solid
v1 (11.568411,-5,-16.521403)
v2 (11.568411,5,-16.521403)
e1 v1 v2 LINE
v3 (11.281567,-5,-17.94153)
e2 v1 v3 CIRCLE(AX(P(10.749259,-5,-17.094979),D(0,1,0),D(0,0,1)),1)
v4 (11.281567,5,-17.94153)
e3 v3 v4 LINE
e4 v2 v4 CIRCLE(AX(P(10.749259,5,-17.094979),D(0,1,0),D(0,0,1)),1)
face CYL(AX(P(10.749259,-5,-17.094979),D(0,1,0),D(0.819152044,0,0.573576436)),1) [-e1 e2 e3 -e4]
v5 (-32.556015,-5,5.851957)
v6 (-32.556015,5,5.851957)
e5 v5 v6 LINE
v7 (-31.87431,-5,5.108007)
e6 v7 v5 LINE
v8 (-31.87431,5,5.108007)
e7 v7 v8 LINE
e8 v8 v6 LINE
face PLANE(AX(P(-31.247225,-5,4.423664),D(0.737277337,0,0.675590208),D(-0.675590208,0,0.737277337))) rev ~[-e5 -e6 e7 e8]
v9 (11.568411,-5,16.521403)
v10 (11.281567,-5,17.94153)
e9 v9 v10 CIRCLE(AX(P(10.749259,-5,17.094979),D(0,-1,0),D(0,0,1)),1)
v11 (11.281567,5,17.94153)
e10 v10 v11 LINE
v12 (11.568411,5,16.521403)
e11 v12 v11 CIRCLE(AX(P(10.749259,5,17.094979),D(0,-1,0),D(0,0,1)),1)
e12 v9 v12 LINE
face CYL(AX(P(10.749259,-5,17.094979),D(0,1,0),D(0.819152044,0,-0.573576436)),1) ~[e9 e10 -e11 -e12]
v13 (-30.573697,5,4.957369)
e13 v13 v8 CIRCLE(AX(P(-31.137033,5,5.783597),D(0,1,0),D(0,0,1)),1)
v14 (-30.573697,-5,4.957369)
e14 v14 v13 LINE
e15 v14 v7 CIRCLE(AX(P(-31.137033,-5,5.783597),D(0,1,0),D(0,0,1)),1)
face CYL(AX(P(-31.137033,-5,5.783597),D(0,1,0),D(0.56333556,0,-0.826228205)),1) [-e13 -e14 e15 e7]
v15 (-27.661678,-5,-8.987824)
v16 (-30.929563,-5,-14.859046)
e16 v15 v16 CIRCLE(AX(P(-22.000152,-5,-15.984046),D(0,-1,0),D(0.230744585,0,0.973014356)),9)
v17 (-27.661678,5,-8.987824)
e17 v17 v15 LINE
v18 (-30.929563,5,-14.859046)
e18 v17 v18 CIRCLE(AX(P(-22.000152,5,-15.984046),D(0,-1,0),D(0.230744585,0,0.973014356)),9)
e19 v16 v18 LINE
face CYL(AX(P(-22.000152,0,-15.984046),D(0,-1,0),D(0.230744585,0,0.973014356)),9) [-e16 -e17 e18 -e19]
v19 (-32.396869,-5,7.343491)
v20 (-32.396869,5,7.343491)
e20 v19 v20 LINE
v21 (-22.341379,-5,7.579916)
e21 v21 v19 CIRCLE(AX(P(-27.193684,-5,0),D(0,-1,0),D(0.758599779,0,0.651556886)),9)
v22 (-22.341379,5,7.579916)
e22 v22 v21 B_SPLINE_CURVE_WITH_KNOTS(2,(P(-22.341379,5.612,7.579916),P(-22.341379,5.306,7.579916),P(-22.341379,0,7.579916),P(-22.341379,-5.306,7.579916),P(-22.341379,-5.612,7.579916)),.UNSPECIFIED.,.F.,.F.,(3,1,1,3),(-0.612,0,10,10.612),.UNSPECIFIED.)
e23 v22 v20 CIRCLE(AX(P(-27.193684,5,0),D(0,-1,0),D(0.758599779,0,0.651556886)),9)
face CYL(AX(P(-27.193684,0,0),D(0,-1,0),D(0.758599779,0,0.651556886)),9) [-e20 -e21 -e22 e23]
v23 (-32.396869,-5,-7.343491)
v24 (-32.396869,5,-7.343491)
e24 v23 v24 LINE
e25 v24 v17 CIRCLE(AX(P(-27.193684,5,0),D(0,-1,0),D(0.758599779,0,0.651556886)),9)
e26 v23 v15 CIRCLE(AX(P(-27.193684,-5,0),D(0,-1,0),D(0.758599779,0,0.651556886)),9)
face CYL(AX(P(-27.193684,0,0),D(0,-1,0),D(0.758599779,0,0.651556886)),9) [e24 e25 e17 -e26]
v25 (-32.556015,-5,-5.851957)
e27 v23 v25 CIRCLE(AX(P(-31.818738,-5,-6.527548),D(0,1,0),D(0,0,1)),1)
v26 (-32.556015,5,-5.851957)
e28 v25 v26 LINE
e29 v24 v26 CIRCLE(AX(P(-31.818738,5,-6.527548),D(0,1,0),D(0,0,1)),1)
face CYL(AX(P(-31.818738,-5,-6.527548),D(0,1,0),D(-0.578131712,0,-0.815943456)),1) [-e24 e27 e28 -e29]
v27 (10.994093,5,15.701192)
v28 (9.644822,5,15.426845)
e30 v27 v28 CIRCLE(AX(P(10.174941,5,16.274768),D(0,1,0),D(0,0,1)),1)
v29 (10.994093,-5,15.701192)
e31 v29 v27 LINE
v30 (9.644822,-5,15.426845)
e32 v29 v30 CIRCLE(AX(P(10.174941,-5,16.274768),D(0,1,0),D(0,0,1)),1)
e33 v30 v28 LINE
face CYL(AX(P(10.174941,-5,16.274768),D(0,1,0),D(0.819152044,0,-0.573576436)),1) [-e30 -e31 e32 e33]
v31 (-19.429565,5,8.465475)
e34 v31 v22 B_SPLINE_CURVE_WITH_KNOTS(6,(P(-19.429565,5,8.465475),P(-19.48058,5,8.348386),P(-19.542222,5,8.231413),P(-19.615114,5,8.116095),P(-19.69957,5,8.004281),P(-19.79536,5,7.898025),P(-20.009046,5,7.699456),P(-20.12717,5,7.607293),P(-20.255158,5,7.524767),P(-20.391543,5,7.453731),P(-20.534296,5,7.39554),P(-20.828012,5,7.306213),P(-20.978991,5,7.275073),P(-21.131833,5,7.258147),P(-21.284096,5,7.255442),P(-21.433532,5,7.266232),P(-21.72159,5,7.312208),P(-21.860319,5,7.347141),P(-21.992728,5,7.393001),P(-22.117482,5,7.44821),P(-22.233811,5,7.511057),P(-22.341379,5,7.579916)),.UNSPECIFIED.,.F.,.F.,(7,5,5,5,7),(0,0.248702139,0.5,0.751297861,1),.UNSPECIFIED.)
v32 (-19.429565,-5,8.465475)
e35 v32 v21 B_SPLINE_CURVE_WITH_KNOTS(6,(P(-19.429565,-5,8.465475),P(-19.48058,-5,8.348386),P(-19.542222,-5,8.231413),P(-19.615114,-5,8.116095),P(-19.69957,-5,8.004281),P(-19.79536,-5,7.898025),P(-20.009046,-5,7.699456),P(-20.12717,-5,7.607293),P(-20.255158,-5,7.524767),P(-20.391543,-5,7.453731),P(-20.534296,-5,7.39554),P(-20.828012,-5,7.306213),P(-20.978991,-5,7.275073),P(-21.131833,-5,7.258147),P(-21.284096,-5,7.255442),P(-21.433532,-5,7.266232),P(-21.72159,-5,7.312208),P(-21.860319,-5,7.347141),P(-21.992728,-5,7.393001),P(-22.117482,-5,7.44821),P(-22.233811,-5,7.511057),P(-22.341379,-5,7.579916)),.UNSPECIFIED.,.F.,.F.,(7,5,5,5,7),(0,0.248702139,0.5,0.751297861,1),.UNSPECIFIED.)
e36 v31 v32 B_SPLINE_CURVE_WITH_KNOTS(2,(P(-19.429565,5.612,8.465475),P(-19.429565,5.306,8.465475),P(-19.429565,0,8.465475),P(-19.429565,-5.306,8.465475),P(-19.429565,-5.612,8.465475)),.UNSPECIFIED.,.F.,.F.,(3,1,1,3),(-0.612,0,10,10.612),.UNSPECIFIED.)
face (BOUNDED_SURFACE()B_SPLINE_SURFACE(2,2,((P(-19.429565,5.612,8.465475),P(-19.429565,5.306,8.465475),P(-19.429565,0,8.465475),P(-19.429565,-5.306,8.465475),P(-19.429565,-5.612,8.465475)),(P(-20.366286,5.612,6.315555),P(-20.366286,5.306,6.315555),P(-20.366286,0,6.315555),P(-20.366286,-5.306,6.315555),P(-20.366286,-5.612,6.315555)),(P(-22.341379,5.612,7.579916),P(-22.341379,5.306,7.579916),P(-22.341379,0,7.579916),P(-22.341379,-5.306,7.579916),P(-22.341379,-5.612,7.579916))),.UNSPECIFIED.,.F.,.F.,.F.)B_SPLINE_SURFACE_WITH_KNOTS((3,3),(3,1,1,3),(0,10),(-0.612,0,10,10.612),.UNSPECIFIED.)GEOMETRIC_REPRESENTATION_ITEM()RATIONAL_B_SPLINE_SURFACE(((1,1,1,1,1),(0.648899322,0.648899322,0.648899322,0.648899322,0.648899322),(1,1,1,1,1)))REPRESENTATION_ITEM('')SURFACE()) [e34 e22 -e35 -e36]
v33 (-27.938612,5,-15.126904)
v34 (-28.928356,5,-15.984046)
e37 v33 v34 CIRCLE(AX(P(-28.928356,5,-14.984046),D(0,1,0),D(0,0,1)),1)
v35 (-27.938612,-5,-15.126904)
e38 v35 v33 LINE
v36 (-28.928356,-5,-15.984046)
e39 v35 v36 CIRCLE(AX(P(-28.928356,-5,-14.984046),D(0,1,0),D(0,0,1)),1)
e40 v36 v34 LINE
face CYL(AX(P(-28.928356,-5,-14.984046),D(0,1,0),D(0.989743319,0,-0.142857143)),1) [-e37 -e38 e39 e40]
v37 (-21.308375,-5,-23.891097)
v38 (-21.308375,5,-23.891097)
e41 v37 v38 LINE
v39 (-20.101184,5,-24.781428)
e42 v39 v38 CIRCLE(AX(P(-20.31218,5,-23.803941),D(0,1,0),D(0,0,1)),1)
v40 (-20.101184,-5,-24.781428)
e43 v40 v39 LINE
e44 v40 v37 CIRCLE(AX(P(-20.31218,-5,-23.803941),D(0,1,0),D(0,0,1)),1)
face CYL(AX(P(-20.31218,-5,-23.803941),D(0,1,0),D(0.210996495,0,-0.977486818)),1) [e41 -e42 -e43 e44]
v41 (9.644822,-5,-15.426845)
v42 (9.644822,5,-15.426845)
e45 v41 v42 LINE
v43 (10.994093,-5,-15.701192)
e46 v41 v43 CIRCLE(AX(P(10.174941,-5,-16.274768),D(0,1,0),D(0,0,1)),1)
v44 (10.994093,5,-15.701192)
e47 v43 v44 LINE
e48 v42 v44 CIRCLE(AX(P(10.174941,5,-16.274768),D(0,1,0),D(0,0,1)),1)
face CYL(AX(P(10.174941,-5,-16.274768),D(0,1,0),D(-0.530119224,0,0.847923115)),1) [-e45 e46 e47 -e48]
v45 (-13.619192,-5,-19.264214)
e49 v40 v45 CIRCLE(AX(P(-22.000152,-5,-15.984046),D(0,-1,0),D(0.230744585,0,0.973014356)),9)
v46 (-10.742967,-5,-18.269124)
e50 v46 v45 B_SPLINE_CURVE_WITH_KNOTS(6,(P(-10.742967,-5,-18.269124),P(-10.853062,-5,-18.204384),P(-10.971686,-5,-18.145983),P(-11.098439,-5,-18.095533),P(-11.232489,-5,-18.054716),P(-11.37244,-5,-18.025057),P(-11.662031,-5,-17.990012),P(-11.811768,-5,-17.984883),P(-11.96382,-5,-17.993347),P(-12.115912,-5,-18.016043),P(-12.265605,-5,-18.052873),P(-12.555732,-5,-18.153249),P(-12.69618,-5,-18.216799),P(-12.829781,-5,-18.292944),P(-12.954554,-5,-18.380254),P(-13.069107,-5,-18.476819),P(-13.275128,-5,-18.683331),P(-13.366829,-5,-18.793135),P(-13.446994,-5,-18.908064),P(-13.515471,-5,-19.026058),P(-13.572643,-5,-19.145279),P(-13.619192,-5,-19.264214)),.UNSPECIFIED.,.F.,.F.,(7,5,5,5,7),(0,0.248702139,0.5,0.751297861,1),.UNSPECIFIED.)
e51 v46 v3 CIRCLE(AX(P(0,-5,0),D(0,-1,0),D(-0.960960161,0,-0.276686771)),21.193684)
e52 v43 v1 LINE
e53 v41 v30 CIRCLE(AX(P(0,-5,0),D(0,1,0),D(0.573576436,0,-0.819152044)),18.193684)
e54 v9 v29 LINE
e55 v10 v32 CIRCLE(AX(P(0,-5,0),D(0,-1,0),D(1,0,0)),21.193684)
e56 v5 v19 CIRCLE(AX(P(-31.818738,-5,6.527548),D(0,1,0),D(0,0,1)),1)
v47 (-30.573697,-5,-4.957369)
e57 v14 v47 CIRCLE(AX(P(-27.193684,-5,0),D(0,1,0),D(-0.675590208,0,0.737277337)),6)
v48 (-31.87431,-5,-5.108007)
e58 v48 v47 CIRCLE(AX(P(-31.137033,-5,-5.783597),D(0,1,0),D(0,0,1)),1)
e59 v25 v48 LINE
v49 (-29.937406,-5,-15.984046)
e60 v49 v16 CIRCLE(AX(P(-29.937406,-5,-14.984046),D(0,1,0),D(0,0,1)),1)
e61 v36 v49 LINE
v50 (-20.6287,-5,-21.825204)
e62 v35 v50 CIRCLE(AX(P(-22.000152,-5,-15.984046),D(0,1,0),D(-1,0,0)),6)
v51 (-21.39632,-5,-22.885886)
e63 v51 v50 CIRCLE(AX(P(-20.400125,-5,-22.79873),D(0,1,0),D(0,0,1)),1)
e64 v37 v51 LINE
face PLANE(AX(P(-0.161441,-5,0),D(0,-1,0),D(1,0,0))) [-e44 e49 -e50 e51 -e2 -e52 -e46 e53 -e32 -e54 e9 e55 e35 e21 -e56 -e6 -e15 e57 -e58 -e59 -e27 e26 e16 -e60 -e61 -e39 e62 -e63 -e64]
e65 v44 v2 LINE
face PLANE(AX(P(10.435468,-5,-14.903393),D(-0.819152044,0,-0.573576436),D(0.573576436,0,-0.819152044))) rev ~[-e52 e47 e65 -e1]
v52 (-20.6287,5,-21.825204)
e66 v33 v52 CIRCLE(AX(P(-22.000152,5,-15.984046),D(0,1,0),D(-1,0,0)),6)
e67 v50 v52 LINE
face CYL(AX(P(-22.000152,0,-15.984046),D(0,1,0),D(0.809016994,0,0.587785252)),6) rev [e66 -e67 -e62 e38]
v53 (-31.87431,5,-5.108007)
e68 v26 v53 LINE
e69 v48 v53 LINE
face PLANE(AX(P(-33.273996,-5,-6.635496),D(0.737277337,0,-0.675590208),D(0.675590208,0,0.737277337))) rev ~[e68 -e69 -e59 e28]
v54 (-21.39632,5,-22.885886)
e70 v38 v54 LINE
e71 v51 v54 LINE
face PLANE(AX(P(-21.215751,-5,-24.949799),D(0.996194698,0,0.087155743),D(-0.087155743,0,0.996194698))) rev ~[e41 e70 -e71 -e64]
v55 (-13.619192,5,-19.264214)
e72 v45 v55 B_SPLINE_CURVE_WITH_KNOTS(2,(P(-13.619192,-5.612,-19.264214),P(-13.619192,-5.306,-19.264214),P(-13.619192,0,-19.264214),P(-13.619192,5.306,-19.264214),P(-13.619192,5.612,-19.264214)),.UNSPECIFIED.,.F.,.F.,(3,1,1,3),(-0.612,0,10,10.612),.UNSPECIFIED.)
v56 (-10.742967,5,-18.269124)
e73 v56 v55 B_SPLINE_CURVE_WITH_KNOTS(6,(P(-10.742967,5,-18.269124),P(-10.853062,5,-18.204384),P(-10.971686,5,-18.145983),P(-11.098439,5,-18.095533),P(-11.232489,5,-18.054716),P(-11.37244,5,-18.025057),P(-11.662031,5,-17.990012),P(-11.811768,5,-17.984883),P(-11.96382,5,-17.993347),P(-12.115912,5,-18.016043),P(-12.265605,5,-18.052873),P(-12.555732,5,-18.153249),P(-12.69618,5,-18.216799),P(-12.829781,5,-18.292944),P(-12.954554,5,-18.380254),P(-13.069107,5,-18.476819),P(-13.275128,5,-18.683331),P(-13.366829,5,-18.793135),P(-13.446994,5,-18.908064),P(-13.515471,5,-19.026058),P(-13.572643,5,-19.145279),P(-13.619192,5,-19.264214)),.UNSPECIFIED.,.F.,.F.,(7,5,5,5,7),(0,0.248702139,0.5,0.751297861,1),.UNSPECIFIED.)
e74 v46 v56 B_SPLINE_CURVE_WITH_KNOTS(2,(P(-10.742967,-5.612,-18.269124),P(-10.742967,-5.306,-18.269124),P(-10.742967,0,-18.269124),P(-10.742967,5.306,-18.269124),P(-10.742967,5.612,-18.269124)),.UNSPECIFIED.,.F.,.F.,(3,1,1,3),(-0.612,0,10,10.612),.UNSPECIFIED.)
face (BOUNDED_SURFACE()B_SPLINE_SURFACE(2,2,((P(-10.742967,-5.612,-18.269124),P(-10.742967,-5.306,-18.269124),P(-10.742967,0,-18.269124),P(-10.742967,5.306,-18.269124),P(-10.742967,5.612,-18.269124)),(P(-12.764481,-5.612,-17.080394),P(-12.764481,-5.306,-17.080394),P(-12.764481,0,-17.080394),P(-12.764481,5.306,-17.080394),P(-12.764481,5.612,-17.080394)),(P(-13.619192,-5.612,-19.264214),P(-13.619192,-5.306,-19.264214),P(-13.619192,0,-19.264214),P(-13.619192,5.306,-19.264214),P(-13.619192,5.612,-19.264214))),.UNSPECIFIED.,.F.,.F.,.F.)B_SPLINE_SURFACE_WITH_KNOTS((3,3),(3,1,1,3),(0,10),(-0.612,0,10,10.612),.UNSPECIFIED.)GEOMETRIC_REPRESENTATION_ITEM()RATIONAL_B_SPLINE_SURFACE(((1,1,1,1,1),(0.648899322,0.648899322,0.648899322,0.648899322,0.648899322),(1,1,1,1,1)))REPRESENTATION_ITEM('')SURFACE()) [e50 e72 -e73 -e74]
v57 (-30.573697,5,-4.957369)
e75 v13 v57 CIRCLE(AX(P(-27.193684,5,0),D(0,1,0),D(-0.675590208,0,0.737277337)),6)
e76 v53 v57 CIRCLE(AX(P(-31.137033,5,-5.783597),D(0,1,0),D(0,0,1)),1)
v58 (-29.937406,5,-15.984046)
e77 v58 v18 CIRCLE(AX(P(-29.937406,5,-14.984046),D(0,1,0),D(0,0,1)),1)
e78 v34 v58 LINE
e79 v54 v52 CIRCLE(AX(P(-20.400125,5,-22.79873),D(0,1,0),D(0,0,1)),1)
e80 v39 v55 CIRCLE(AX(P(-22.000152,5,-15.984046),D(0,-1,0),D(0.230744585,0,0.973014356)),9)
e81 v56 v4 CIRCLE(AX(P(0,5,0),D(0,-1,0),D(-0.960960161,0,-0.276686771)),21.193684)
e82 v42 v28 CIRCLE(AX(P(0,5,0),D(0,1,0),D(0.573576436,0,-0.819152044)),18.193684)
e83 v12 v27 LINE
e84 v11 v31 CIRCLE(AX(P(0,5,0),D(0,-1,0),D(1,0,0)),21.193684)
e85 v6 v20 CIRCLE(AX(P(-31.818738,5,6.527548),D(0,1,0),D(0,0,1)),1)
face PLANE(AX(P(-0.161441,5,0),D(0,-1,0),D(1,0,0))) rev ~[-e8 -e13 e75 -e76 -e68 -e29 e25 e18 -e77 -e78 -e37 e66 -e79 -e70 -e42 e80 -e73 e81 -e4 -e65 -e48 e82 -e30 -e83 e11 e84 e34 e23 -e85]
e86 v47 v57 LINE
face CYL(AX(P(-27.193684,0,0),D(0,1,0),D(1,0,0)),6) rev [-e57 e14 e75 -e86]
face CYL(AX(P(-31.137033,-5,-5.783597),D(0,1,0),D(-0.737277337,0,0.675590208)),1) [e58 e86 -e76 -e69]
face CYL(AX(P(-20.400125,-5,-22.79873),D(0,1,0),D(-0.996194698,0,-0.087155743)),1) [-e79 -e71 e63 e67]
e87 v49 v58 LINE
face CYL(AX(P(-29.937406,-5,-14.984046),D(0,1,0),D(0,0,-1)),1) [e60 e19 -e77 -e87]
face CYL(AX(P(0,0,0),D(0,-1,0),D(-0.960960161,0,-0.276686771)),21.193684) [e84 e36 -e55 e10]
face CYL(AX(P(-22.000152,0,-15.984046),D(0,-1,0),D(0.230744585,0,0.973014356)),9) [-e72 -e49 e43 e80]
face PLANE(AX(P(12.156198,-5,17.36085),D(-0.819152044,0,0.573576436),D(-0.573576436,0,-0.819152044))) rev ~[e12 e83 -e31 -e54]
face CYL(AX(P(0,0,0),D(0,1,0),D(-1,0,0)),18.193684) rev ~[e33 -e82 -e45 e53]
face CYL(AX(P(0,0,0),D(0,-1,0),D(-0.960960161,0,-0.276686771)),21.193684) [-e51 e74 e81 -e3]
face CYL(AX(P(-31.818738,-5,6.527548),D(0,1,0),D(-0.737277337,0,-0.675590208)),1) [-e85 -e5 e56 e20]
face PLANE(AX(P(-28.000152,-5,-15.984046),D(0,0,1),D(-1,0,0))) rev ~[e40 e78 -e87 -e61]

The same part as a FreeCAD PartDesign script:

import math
import FreeCAD as App
import Part
import Sketcher
from FreeCAD import Vector
Q = App.Units.Quantity


def edges_at(feature, points):
    """Names of the edges that pass closest to the given points."""
    edges = feature.Shape.Edges
    near = lambda p: min(range(len(edges)), key=lambda i: edges[i].distToShape(Part.Vertex(*p))[0])
    return sorted({f"Edge{near(p) + 1}" for p in points})

doc = App.newDocument("Part")
body = doc.addObject("PartDesign::Body", "Body")

sketch1 = doc.addObject("Sketcher::SketchObject", "Sketch")
body.addObject(sketch1)
sketch1.AttachmentSupport = (doc.XZ_Plane, [""])
sketch1.MapMode = "FlatFace"
sketch1.addGeometry([
    Part.ArcOfCircle(Part.Circle(Vector(0, 0, 0), Vector(0, 0, 1), 21), math.radians(-164), math.radians(0)),
    Part.ArcOfCircle(Part.Circle(Vector(0, 0, 0), Vector(0, 0, 1), 21), math.radians(0), math.radians(164)),
    Part.ArcOfCircle(Part.Circle(Vector(-27, 0, 0), Vector(0, 0, 1), 9), math.radians(41), math.radians(319)),
    Part.Circle(Vector(-27, 0, 0), Vector(0, 0, 1), 6),
    Part.Circle(Vector(0, 0, 0), Vector(0, 0, 1), 18),
], False)
sketch1.addConstraint([
    Sketcher.Constraint("Tangent", 0, 2, 1, 1),
    Sketcher.Constraint("Coincident", 1, 2, 2, 1),
    Sketcher.Constraint("Coincident", 2, 2, 0, 1),
    Sketcher.Constraint("Coincident", 0, 3, -1, 1),
    Sketcher.Constraint("Coincident", 4, 3, -1, 1),
    Sketcher.Constraint("Coincident", 3, 3, 2, 3),
    Sketcher.Constraint("Equal", 0, 1),
    Sketcher.Constraint("PointOnObject", 2, 3, -1),
    Sketcher.Constraint("PointOnObject", 0, 2, -1),
    Sketcher.Constraint("Diameter", 3, Q("12 mm")),
    Sketcher.Constraint("Radius", 2, Q("9 mm")),
    Sketcher.Constraint("Diameter", 4, Q("36.387368 mm")),
    Sketcher.Constraint("Radius", 0, Q("21.193684 mm")),
    Sketcher.Constraint("DistanceX", 2, 3, 1, 2, Q("6.827398 mm")),
])
pad1 = doc.addObject("PartDesign::Pad", "Pad")
body.addObject(pad1)
pad1.Profile = sketch1
pad1.Length = 10
pad1.Midplane = True
doc.recompute()

fillet = doc.addObject("PartDesign::Fillet", "Fillet")
body.addObject(fillet)
fillet.Base = (pad1, edges_at(pad1, [(-20.366, 0, 5.864), (-20.366, 0, -5.864)]))
fillet.Radius = 2
body2 = doc.addObject("PartDesign::Body", "Body001")
doc.recompute()

body2.BaseFeature = body
doc.recompute()

body.Placement = App.Placement(Vector(0, 0, 0), App.Rotation(Vector(0, -1, 0), 36))
boolean = doc.addObject("PartDesign::Boolean", "Boolean")
body2.addObject(boolean)
boolean.Type = "Fuse"
boolean.addObjects([body])

sketch2 = doc.addObject("Sketcher::SketchObject", "Sketch001")
body2.addObject(sketch2)
sketch2.AttachmentSupport = (doc.getObject("XZ_Plane001"), [""])
sketch2.MapMode = "FlatFace"
sketch2.AttachmentOffset = App.Placement(Vector(0, 0, 5), App.Rotation())
sketch2.addGeometry([
    Part.ArcOfCircle(Part.Circle(Vector(-27.2, 0, 0), Vector(0, 0, 1), 6), math.radians(133), math.radians(227)),
    Part.LineSegment(Vector(-31.2, 4.4, 0), Vector(-33.3, 6.6, 0)),
    Part.ArcOfCircle(Part.Circle(Vector(-27.2, 0, 0), Vector(0, 0, 1), 9), math.radians(133), math.radians(227)),
    Part.LineSegment(Vector(-33.3, -6.6, 0), Vector(-31.2, -4.4, 0)),
    Part.ArcOfCircle(Part.Circle(Vector(0, 0, 0), Vector(0, 0, 1), 21.2), math.radians(-55), math.radians(55)),
    Part.LineSegment(Vector(12.2, 17.4, 0), Vector(10.4, 14.9, 0)),
    Part.ArcOfCircle(Part.Circle(Vector(0, 0, 0), Vector(0, 0, 1), 18.2), math.radians(0), math.radians(55)),
    Part.ArcOfCircle(Part.Circle(Vector(0, 0, 0), Vector(0, 0, 1), 18.2), math.radians(-55), math.radians(0)),
    Part.LineSegment(Vector(10.4, -14.9, 0), Vector(12.2, -17.4, 0)),
    Part.LineSegment(Vector(-28, -16, 0), Vector(-31, -16, 0)),
    Part.ArcOfCircle(Part.Circle(Vector(-22, -16, 0), Vector(0, 0, 1), 9), math.radians(180), math.radians(275)),
    Part.LineSegment(Vector(-21.2, -24.9, 0), Vector(-21.5, -22, 0)),
    Part.ArcOfCircle(Part.Circle(Vector(-22, -16, 0), Vector(0, 0, 1), 6), math.radians(180), math.radians(275)),
], False)
sketch2.addConstraint([
    Sketcher.Constraint("Coincident", 0, 1, 1, 1),
    Sketcher.Constraint("Coincident", 1, 2, 2, 1),
    Sketcher.Constraint("Coincident", 2, 2, 3, 1),
    Sketcher.Constraint("Coincident", 3, 2, 0, 2),
    Sketcher.Constraint("Coincident", 4, 2, 5, 1),
    Sketcher.Constraint("Coincident", 5, 2, 6, 2),
    Sketcher.Constraint("Tangent", 6, 1, 7, 2),
    Sketcher.Constraint("Coincident", 7, 1, 8, 1),
    Sketcher.Constraint("Coincident", 8, 2, 4, 1),
    Sketcher.Constraint("Coincident", 9, 2, 10, 1),
    Sketcher.Constraint("Coincident", 10, 2, 11, 1),
    Sketcher.Constraint("Coincident", 11, 2, 12, 2),
    Sketcher.Constraint("Coincident", 12, 1, 9, 1),
    Sketcher.Constraint("Horizontal", 9),
    Sketcher.Constraint("Coincident", 4, 3, -1, 1),
    Sketcher.Constraint("Coincident", 6, 3, -1, 1),
    Sketcher.Constraint("Coincident", 2, 3, 0, 3),
    Sketcher.Constraint("Coincident", 12, 3, 10, 3),
    Sketcher.Constraint("Equal", 6, 7),
    Sketcher.Constraint("Equal", 2, 10),
    Sketcher.Constraint("Equal", 0, 12),
    Sketcher.Constraint("Symmetric", 1, 2, 2, 2, -1),
    Sketcher.Constraint("PointOnObject", 6, 1, -1),
    Sketcher.Constraint("Horizontal", 12, 3, 9, 2),
    Sketcher.Constraint("Vertical", 0, 1, 3, 2),
    Sketcher.Constraint("Vertical", 5, 2, 7, 1),
    Sketcher.Constraint("Vertical", 4, 2, 8, 2),
    Sketcher.Constraint("Equal", 3, 5),
    Sketcher.Constraint("Radius", 0, Q("6 mm")),
    Sketcher.Constraint("Radius", 2, Q("9 mm")),
    Sketcher.Constraint("Angle", 5, Q("-125 deg")),
    Sketcher.Constraint("Angle", 11, Q("95 deg")),
    Sketcher.Constraint("Angle", 1, Q("132.5 deg")),
    Sketcher.Constraint("Radius", 4, Q("21.193684 mm")),
    Sketcher.Constraint("DistanceY", 10, 2, -1, 1, Q("24.949799 mm")),
    Sketcher.Constraint("DistanceX", 10, 3, 10, 2, Q("0.784402 mm")),
    Sketcher.Constraint("DistanceY", -1, 1, 4, 2, Q("17.36085 mm")),
    Sketcher.Constraint("DistanceX", 10, 2, -1, 1, Q("21.215751 mm")),
    Sketcher.Constraint("DistanceX", 0, 3, 10, 3, Q("5.193531 mm")),
    Sketcher.Constraint("DistanceX", 0, 1, 0, 3, Q("4.053541 mm")),
])
pocket1 = doc.addObject("PartDesign::Pocket", "Pocket")
body2.addObject(pocket1)
pocket1.Profile = sketch2
pocket1.Type = "ThroughAll"
doc.recompute()

fillet2 = doc.addObject("PartDesign::Fillet", "Fillet001")
body2.addObject(fillet2)
fillet2.Base = (pocket1, edges_at(pocket1, [
    (-31.247, 0, 4.424),
    (-33.274, 0, 6.635),
    (-33.274, 0, -6.635),
    (-31.247, 0, -4.424),
    (10.435, 0, 14.903),
    (12.156, 0, 17.361),
    (12.156, 0, -17.361),
    (10.435, 0, -14.903),
    (-28, 0, -15.984),
    (-31, 0, -15.984),
    (-21.477, 0, -21.961),
    (-21.216, 0, -24.95),
]))
fillet2.Radius = 1

doc.recompute()
